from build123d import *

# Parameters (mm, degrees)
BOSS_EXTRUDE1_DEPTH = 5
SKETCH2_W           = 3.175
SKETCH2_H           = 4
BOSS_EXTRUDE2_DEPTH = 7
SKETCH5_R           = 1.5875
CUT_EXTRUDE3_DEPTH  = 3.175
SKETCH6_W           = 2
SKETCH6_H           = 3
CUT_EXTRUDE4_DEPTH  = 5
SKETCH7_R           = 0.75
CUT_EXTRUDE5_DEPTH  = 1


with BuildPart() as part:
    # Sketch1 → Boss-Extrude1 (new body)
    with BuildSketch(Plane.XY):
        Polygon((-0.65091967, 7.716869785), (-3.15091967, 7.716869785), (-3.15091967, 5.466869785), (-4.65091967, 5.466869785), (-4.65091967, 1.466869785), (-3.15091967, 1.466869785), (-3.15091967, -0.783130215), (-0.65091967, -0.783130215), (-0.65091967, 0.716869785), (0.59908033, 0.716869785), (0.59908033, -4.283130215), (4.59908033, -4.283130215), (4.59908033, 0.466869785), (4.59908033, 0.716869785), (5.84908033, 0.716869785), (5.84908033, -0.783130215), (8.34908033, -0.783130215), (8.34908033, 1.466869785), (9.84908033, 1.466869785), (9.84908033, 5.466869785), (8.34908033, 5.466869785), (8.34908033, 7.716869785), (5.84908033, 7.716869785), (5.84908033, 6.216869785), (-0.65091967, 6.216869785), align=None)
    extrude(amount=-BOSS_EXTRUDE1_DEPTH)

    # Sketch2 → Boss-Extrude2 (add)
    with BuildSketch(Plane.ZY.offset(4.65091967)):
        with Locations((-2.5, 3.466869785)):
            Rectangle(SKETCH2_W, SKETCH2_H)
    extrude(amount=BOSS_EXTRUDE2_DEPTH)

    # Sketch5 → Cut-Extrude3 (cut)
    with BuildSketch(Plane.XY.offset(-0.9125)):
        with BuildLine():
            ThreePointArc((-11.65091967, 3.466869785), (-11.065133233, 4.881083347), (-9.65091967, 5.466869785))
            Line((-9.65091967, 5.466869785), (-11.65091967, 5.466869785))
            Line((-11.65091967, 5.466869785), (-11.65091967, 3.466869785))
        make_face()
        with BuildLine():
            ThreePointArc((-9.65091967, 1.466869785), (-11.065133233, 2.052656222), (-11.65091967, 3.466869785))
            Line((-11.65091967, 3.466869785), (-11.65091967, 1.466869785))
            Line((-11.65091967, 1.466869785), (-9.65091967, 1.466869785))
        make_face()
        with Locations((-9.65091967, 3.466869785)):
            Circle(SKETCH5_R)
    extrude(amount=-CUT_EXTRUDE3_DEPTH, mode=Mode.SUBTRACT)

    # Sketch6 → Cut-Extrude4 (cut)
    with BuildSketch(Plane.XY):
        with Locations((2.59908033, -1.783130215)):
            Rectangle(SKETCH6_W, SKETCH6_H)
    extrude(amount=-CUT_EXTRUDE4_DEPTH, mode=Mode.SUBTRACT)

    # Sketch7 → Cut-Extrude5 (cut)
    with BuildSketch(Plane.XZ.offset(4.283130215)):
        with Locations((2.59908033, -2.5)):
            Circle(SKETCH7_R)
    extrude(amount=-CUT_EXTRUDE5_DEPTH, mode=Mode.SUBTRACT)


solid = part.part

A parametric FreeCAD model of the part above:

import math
import FreeCAD as App
import Part
import Sketcher


def add_polygon(sketch, points):
    """Adds a closed chain of lines whose ends are joined by coincident constraints."""
    first, n = sketch.GeometryCount, len(points)
    for a, b in zip(points, points[1:] + points[:1]):
        sketch.addGeometry(Part.LineSegment(App.Vector(*a, 0), App.Vector(*b, 0)), False)
    for i in range(n):
        sketch.addConstraint(Sketcher.Constraint("Coincident", first + i, 2, first + (i + 1) % n, 1))

doc = App.newDocument("Part")
params = doc.addObject("Spreadsheet::Sheet", "Params")
for row, (alias, value) in enumerate([
    ("sketch1_width", "4 mm"),
    ("sketch1_height", "5 mm"),
    ("sketch1_width2", "2.5 mm"),
    ("sketch1_width3", "1.5 mm"),
    ("sketch1_width4", "6.5 mm"),
    ("pad1_length", "5 mm"),
    ("sketch2_width", "4 mm"),
    ("pad2_length", "7 mm"),
    ("sketch3_radius", "2 mm"),
    ("pocket1_length", "3.175 mm"),
    ("sketch4_width", "2 mm"),
    ("sketch4_height", "3 mm"),
    ("pocket2_length", "5 mm"),
    ("sketch5_diameter", "1.5 mm"),
    ("pocket3_length", "1 mm"),
], start=1):
    params.set(f"A{row}", alias)
    params.set(f"B{row}", "=" + value)
    params.setAlias(f"B{row}", alias)

body = doc.addObject("PartDesign::Body", "Body")

sketch1 = body.newObject("Sketcher::SketchObject", "Sketch")
sketch1.AttachmentSupport = (doc.getObject("XY_Plane"), [""])
sketch1.MapMode = "FlatFace"
add_polygon(sketch1, [(-0.7, 7.7), (-3.2, 7.7), (-3.2, 5.5), (-4.7, 5.5), (-4.7, 1.5), (-3.2, 1.5), (-3.2, -0.8), (-0.7, -0.8), (-0.7, 0.7), (0.6, 0.7), (0.6, -4.3), (4.6, -4.3), (4.6, 0.7), (5.8, 0.7), (5.8, -0.8), (8.3, -0.8), (8.3, 1.5), (9.8, 1.5), (9.8, 5.5), (8.3, 5.5), (8.3, 7.7), (5.8, 7.7), (5.8, 6.2), (-0.7, 6.2)])
sketch1.addConstraint(Sketcher.Constraint("Horizontal", 0))
sketch1.addConstraint(Sketcher.Constraint("Vertical", 1))
sketch1.addConstraint(Sketcher.Constraint("Horizontal", 2))
sketch1.addConstraint(Sketcher.Constraint("Vertical", 3))
sketch1.addConstraint(Sketcher.Constraint("Horizontal", 4))
sketch1.addConstraint(Sketcher.Constraint("Vertical", 5))
sketch1.addConstraint(Sketcher.Constraint("Horizontal", 6))
sketch1.addConstraint(Sketcher.Constraint("Vertical", 7))
sketch1.addConstraint(Sketcher.Constraint("Horizontal", 8))
sketch1.addConstraint(Sketcher.Constraint("Vertical", 9))
sketch1.addConstraint(Sketcher.Constraint("Horizontal", 10))
sketch1.addConstraint(Sketcher.Constraint("Vertical", 11))
sketch1.addConstraint(Sketcher.Constraint("Horizontal", 12))
sketch1.addConstraint(Sketcher.Constraint("Vertical", 13))
sketch1.addConstraint(Sketcher.Constraint("Horizontal", 14))
sketch1.addConstraint(Sketcher.Constraint("Vertical", 15))
sketch1.addConstraint(Sketcher.Constraint("Horizontal", 16))
sketch1.addConstraint(Sketcher.Constraint("Vertical", 17))
sketch1.addConstraint(Sketcher.Constraint("Horizontal", 18))
sketch1.addConstraint(Sketcher.Constraint("Vertical", 19))
sketch1.addConstraint(Sketcher.Constraint("Horizontal", 20))
sketch1.addConstraint(Sketcher.Constraint("Vertical", 21))
sketch1.addConstraint(Sketcher.Constraint("Horizontal", 22))
sketch1.addConstraint(Sketcher.Constraint("Vertical", 23))
sketch1.addConstraint(Sketcher.Constraint("Horizontal", 8, 2, 11, 2))
sketch1.addConstraint(Sketcher.Constraint("Horizontal", 6, 2, 13, 2))
sketch1.addConstraint(Sketcher.Constraint("Horizontal", 4, 2, 15, 2))
sketch1.addConstraint(Sketcher.Constraint("Horizontal", 2, 2, 17, 2))
sketch1.addConstraint(Sketcher.Constraint("Horizontal", 0, 2, 19, 2))
sketch1.addConstraint(Sketcher.Constraint("Vertical", 1, 2, 4, 2))
sketch1.addConstraint(Sketcher.Constraint("Vertical", 15, 2, 18, 2))
sketch1.addConstraint(Sketcher.Constraint("Vertical", 13, 2, 20, 2))
sketch1.addConstraint(Sketcher.Constraint("Vertical", 7, 2, 22, 2))
sketch1.addConstraint(Sketcher.Constraint("Equal", 8, 12))
sketch1.addConstraint(Sketcher.Constraint("Equal", 6, 14))
sketch1.addConstraint(Sketcher.Constraint("Equal", 4, 16))
sketch1.addConstraint(Sketcher.Constraint("Equal", 10, 3))
sketch1.addConstraint(Sketcher.Constraint("Equal", 1, 5))
sketch1.addConstraint(Sketcher.Constraint("Equal", 18, 7))
sketch1.addConstraint(Sketcher.Constraint("Equal", 13, 21))
sketch1.addConstraint(Sketcher.Constraint("DistanceX", 10, 1, 10, 2, 4.0))
sketch1.addConstraint(Sketcher.Constraint("DistanceY", 9, 2, 9, 1, 5.0))
sketch1.addConstraint(Sketcher.Constraint("DistanceX", 0, 2, 0, 1, 2.5))
sketch1.addConstraint(Sketcher.Constraint("DistanceX", 2, 2, 2, 1, 1.5))
sketch1.addConstraint(Sketcher.Constraint("DistanceX", 22, 2, 22, 1, 6.5))
sketch1.addConstraint(Sketcher.Constraint("DistanceY", 12, 2, 19, 2, 7.0))
sketch1.addConstraint(Sketcher.Constraint("DistanceX", 0, 2, -1, 1, 3.15092))
sketch1.addConstraint(Sketcher.Constraint("DistanceY", -1, 1, 0, 2, 7.71687))
sketch1.setExpression("Constraints[64]", "Params.sketch1_width")
sketch1.setExpression("Constraints[65]", "Params.sketch1_height")
sketch1.setExpression("Constraints[66]", "Params.sketch1_width2")
sketch1.setExpression("Constraints[67]", "Params.sketch1_width3")
sketch1.setExpression("Constraints[68]", "Params.sketch1_width4")
pad1 = body.newObject("PartDesign::Pad", "Pad")
pad1.Profile = sketch1
pad1.setExpression("Length", "Params.pad1_length")
pad1.Reversed = True

sketch2 = body.newObject("Sketcher::SketchObject", "Sketch001")
sketch2.AttachmentSupport = (doc.getObject("YZ_Plane"), [""])
sketch2.MapMode = "FlatFace"
sketch2.AttachmentOffset = App.Placement(App.Vector(0, 0, -4.65092), App.Rotation())
add_polygon(sketch2, [(5.5, -4.1), (1.5, -4.1), (1.5, -0.9), (5.5, -0.9)])
sketch2.addConstraint(Sketcher.Constraint("Horizontal", 0))
sketch2.addConstraint(Sketcher.Constraint("Vertical", 1))
sketch2.addConstraint(Sketcher.Constraint("Horizontal", 2))
sketch2.addConstraint(Sketcher.Constraint("Vertical", 3))
sketch2.addConstraint(Sketcher.Constraint("DistanceX", 0, 2, 0, 1, 4.0))
sketch2.addConstraint(Sketcher.Constraint("DistanceY", 1, 1, 1, 2, 3.175))
sketch2.addConstraint(Sketcher.Constraint("DistanceY", 0, 2, -1, 1, 4.0875))
sketch2.addConstraint(Sketcher.Constraint("DistanceX", -1, 1, 0, 2, 1.46687))
sketch2.setExpression("Constraints[8]", "Params.sketch2_width")
pad2 = body.newObject("PartDesign::Pad", "Pad001")
pad2.Profile = sketch2
pad2.setExpression("Length", "Params.pad2_length")
pad2.Reversed = True

sketch3 = body.newObject("Sketcher::SketchObject", "Sketch002")
sketch3.AttachmentSupport = (doc.getObject("XY_Plane"), [""])
sketch3.MapMode = "FlatFace"
sketch3.AttachmentOffset = App.Placement(App.Vector(0, 0, -0.9125), App.Rotation())
sketch3.addGeometry(Part.ArcOfCircle(Part.Circle(App.Vector(-9.7, 3.5, 0), App.Vector(0, 0, 1), 2), math.radians(90), math.radians(180)), False)
sketch3.addGeometry(Part.LineSegment(App.Vector(-9.7, 5.5, 0), App.Vector(-11.7, 5.5, 0)), False)
sketch3.addGeometry(Part.LineSegment(App.Vector(-11.7, 5.5, 0), App.Vector(-11.7, 3.5, 0)), False)
sketch3.addGeometry(Part.ArcOfCircle(Part.Circle(App.Vector(-9.7, 3.5, 0), App.Vector(0, 0, 1), 2), math.radians(180), math.radians(270)), False)
sketch3.addGeometry(Part.LineSegment(App.Vector(-11.7, 3.5, 0), App.Vector(-11.7, 1.5, 0)), False)
sketch3.addGeometry(Part.LineSegment(App.Vector(-11.7, 1.5, 0), App.Vector(-9.7, 1.5, 0)), False)
sketch3.addGeometry(Part.Circle(App.Vector(-9.7, 3.5, 0), App.Vector(0, 0, 1), 1.6), False)
sketch3.addConstraint(Sketcher.Constraint("Tangent", 0, 1, 1, 1))
sketch3.addConstraint(Sketcher.Constraint("Coincident", 1, 2, 2, 1))
sketch3.addConstraint(Sketcher.Constraint("Tangent", 2, 2, 0, 2))
sketch3.addConstraint(Sketcher.Constraint("Tangent", 3, 1, 4, 1))
sketch3.addConstraint(Sketcher.Constraint("Coincident", 4, 2, 5, 1))
sketch3.addConstraint(Sketcher.Constraint("Tangent", 5, 2, 3, 2))
sketch3.addConstraint(Sketcher.Constraint("Horizontal", 1))
sketch3.addConstraint(Sketcher.Constraint("Vertical", 2))
sketch3.addConstraint(Sketcher.Constraint("Vertical", 4))
sketch3.addConstraint(Sketcher.Constraint("Horizontal", 5))
sketch3.addConstraint(Sketcher.Constraint("Coincident", 3, 3, 0, 3))
sketch3.addConstraint(Sketcher.Constraint("Coincident", 6, 3, 0, 3))
sketch3.addConstraint(Sketcher.Constraint("Equal", 0, 3))
sketch3.addConstraint(Sketcher.Constraint("Radius", 0, 2.0))
sketch3.addConstraint(Sketcher.Constraint("Diameter", 6, 3.175))
sketch3.addConstraint(Sketcher.Constraint("DistanceX", 0, 3, -1, 1, 9.65092))
sketch3.addConstraint(Sketcher.Constraint("DistanceY", -1, 1, 0, 3, 3.46687))
sketch3.setExpression("Constraints[13]", "Params.sketch3_radius")
pocket1 = body.newObject("PartDesign::Pocket", "Pocket")
pocket1.Profile = sketch3
pocket1.setExpression("Length", "Params.pocket1_length")

sketch4 = body.newObject("Sketcher::SketchObject", "Sketch003")
sketch4.AttachmentSupport = (doc.getObject("XY_Plane"), [""])
sketch4.MapMode = "FlatFace"
add_polygon(sketch4, [(1.6, -0.3), (1.6, -3.3), (3.6, -3.3), (3.6, -0.3)])
sketch4.addConstraint(Sketcher.Constraint("Vertical", 0))
sketch4.addConstraint(Sketcher.Constraint("Horizontal", 1))
sketch4.addConstraint(Sketcher.Constraint("Vertical", 2))
sketch4.addConstraint(Sketcher.Constraint("Horizontal", 3))
sketch4.addConstraint(Sketcher.Constraint("DistanceX", 1, 1, 1, 2, 2.0))
sketch4.addConstraint(Sketcher.Constraint("DistanceY", 0, 2, 0, 1, 3.0))
sketch4.addConstraint(Sketcher.Constraint("DistanceX", -1, 1, 0, 2, 1.59908))
sketch4.addConstraint(Sketcher.Constraint("DistanceY", 0, 2, -1, 1, 3.28313))
sketch4.setExpression("Constraints[8]", "Params.sketch4_width")
sketch4.setExpression("Constraints[9]", "Params.sketch4_height")
pocket2 = body.newObject("PartDesign::Pocket", "Pocket001")
pocket2.Profile = sketch4
pocket2.setExpression("Length", "Params.pocket2_length")

sketch5 = body.newObject("Sketcher::SketchObject", "Sketch004")
sketch5.AttachmentSupport = (doc.getObject("XZ_Plane"), [""])
sketch5.MapMode = "FlatFace"
sketch5.AttachmentOffset = App.Placement(App.Vector(0, 0, 4.28313), App.Rotation())
sketch5.addGeometry(Part.Circle(App.Vector(2.6, -2.5, 0), App.Vector(0, 0, 1), 0.8), False)
sketch5.addConstraint(Sketcher.Constraint("Diameter", 0, 1.5))
sketch5.addConstraint(Sketcher.Constraint("DistanceY", 0, 3, -1, 1, 2.5))
sketch5.addConstraint(Sketcher.Constraint("DistanceX", -1, 1, 0, 3, 2.59908))
sketch5.setExpression("Constraints[0]", "Params.sketch5_diameter")
pocket3 = body.newObject("PartDesign::Pocket", "Pocket002")
pocket3.Profile = sketch5
pocket3.setExpression("Length", "Params.pocket3_length")

doc.recompute()
